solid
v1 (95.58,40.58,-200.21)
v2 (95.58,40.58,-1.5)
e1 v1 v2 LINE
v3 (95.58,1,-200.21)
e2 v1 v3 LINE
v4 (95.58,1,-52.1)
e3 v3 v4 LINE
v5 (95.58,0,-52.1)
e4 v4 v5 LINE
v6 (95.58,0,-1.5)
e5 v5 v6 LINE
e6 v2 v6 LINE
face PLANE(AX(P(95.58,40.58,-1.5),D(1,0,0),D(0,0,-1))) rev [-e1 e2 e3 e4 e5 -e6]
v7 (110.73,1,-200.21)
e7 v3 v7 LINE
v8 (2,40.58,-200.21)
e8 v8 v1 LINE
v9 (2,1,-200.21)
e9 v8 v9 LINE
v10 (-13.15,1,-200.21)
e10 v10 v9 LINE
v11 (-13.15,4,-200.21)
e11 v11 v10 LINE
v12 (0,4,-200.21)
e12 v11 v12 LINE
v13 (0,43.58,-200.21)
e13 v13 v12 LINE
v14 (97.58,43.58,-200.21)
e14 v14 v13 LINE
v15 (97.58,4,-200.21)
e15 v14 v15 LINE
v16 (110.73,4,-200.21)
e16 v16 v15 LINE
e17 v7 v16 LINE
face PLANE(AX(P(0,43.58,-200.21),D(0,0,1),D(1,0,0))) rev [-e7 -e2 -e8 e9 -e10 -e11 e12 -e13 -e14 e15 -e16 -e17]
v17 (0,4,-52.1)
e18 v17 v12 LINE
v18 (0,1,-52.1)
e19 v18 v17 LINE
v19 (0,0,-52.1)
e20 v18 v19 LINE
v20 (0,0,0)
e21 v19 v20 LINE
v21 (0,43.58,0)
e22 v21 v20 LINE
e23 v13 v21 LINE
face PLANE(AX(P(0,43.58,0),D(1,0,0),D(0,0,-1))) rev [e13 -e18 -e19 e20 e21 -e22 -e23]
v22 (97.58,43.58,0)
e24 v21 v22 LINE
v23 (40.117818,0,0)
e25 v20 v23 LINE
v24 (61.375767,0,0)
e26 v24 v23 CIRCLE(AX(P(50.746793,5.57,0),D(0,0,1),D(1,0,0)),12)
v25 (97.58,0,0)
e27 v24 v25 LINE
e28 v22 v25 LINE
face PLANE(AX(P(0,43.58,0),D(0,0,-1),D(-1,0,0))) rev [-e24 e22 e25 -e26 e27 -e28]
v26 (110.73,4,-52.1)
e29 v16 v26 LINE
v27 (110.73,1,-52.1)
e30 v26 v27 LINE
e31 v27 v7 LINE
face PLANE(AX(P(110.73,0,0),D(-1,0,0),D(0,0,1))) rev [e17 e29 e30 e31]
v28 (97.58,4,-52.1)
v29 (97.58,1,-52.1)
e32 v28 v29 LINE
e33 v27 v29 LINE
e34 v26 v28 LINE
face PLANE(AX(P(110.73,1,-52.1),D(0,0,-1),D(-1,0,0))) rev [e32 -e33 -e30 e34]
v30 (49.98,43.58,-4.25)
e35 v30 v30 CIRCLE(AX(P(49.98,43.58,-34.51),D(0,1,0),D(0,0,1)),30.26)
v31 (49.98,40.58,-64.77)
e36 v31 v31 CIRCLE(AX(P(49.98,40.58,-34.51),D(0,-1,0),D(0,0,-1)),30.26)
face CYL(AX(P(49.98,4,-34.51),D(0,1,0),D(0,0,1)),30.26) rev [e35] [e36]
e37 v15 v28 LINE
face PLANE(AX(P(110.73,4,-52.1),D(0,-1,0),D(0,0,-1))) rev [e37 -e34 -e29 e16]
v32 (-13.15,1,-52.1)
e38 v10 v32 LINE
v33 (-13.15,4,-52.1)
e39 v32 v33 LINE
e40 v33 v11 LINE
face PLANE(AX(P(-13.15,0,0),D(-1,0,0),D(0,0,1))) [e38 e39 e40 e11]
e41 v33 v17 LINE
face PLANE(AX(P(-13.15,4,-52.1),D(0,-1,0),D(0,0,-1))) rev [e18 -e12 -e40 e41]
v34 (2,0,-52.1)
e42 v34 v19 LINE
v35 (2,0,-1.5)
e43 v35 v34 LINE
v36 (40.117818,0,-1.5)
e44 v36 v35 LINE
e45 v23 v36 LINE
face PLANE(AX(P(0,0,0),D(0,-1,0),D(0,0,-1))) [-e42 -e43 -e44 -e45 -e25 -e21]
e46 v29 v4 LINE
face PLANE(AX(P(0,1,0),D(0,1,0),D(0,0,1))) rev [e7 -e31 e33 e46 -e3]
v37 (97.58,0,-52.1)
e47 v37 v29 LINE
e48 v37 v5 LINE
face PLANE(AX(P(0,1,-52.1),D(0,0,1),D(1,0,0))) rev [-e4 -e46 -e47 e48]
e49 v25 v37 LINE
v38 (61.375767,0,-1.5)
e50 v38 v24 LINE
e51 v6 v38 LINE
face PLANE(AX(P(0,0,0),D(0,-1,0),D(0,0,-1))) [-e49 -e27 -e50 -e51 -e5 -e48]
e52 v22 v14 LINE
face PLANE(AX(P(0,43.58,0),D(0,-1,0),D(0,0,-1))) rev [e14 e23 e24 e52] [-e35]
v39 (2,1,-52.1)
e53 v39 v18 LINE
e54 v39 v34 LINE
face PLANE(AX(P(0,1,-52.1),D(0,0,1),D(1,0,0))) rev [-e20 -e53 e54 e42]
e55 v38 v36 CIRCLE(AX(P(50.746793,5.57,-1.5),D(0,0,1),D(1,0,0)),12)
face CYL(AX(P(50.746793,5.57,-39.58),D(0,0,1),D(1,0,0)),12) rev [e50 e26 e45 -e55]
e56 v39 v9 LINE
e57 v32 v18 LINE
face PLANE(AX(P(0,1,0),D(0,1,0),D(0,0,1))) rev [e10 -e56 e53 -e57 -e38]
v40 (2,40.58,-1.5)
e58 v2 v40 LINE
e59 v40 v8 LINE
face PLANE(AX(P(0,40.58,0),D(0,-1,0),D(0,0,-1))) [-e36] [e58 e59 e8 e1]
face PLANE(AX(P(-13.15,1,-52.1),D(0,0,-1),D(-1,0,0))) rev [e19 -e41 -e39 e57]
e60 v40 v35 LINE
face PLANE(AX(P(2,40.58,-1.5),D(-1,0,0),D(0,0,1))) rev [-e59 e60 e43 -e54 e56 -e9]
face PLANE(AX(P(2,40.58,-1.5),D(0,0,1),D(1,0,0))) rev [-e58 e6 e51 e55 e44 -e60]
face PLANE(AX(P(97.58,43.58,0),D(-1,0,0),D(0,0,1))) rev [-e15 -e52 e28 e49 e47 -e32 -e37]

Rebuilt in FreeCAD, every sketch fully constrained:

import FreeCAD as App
import Part
import Sketcher
from FreeCAD import Vector
Q = App.Units.Quantity


def add_polygon(sketch, points):
    """Adds a closed chain of lines whose ends are joined by coincident constraints."""
    first, n = sketch.GeometryCount, len(points)
    for a, b in zip(points, points[1:] + points[:1]):
        sketch.addGeometry(Part.LineSegment(App.Vector(*a, 0), App.Vector(*b, 0)), False)
    for i in range(n):
        sketch.addConstraint(Sketcher.Constraint("Coincident", first + i, 2, first + (i + 1) % n, 1))

doc = App.newDocument("Part")
params = doc.addObject("Spreadsheet::Sheet", "Params")
for row, (alias, value) in enumerate([
    ("sketch1_width", "97.58 mm"),
    ("sketch1_height", "200.21 mm"),
    ("pad1_length", "43.58 mm"),
    ("sketch2_width", "2 mm"),
    ("sketch2_height", "148.11 mm"),
    ("pocket1_length", "1 mm"),
    ("sketch3_width", "1 mm"),
    ("sketch3_height", "148.11 mm"),
    ("pocket2_length", "100 mm"),
    ("sketch4_height", "50.6 mm"),
    ("sketch4_width", "93.58 mm"),
    ("pocket3_length", "40.58 mm"),
    ("sketch5_width", "93.58 mm"),
    ("sketch5_height", "148.11 mm"),
    ("pocket4_length", "39.58 mm"),
    ("sketch6_diameter", "24 mm"),
    ("pocket5_length", "39.58 mm"),
    ("sketch7_diameter", "60.52 mm"),
    ("pocket6_length", "39.58 mm"),
    ("sketch8_width", "3 mm"),
    ("sketch8_height", "148.11 mm"),
    ("pad2_length", "13.15 mm"),
    ("sketch9_width", "3 mm"),
    ("sketch9_height", "148.11 mm"),
    ("pad3_length", "13.15 mm"),
], start=1):
    params.set(f"A{row}", alias)
    params.set(f"B{row}", "=" + value)
    params.setAlias(f"B{row}", alias)

body = doc.addObject("PartDesign::Body", "Body")

# Sketch on XZ plane
sketch1 = body.newObject("Sketcher::SketchObject", "Sketch")
sketch1.AttachmentSupport = (doc.getObject("XZ_Plane"), [""])
sketch1.MapMode = "FlatFace"
add_polygon(sketch1, [(0, -200), (0, 0), (98, 0), (98, -200)])  # lines 0-3
sketch1.addConstraint([
    Sketcher.Constraint("Vertical", 0),
    Sketcher.Constraint("Horizontal", 1),
    Sketcher.Constraint("Vertical", 2),
    Sketcher.Constraint("Horizontal", 3),
    Sketcher.Constraint("Coincident", 0, 2, -1, 1),
    Sketcher.Constraint("DistanceX", 1, 1, 1, 2, Q("97.58 mm")),
    Sketcher.Constraint("DistanceY", 0, 1, 0, 2, Q("200.21 mm")),
])
sketch1.setExpression("Constraints[9]", "Params.sketch1_width")
sketch1.setExpression("Constraints[10]", "Params.sketch1_height")
pad1 = body.newObject("PartDesign::Pad", "Pad")
pad1.Profile = sketch1
pad1.setExpression("Length", "Params.pad1_length")
pad1.Reversed = True

# Sketch on XZ plane
sketch2 = body.newObject("Sketcher::SketchObject", "Sketch001")
sketch2.AttachmentSupport = (doc.getObject("XZ_Plane"), [""])
sketch2.MapMode = "FlatFace"
add_polygon(sketch2, [(0, -52.1), (0, -200.2), (2, -200.2), (2, -52.1)])  # lines 0-3
sketch2.addConstraint([
    Sketcher.Constraint("Vertical", 0),
    Sketcher.Constraint("Horizontal", 1),
    Sketcher.Constraint("Vertical", 2),
    Sketcher.Constraint("Horizontal", 3),
    Sketcher.Constraint("PointOnObject", 0, 2, -2),
    Sketcher.Constraint("DistanceX", 1, 1, 1, 2, Q("2 mm")),
    Sketcher.Constraint("DistanceY", 0, 2, 0, 1, Q("148.11 mm")),
    Sketcher.Constraint("DistanceY", 2, 2, -1, 1, Q("52.1 mm")),
])
sketch2.setExpression("Constraints[9]", "Params.sketch2_width")
sketch2.setExpression("Constraints[10]", "Params.sketch2_height")
pocket1 = body.newObject("PartDesign::Pocket", "Pocket")
pocket1.Profile = sketch2
pocket1.setExpression("Length", "Params.pocket1_length")

# Sketch on YZ plane
sketch3 = body.newObject("Sketcher::SketchObject", "Sketch002")
sketch3.AttachmentSupport = (doc.getObject("YZ_Plane"), [""])
sketch3.MapMode = "FlatFace"
sketch3.AttachmentOffset = App.Placement(Vector(0, 0, 2), App.Rotation())
add_polygon(sketch3, [(1, -200.2), (0, -200.2), (0, -52.1), (1, -52.1)])  # lines 0-3
sketch3.addConstraint([
    Sketcher.Constraint("Horizontal", 0),
    Sketcher.Constraint("Vertical", 1),
    Sketcher.Constraint("Horizontal", 2),
    Sketcher.Constraint("Vertical", 3),
    Sketcher.Constraint("PointOnObject", 0, 2, -2),
    Sketcher.Constraint("DistanceX", 0, 2, 0, 1, Q("1 mm")),
    Sketcher.Constraint("DistanceY", 1, 1, 1, 2, Q("148.11 mm")),
    Sketcher.Constraint("DistanceY", 1, 2, -1, 1, Q("52.1 mm")),
])
sketch3.setExpression("Constraints[9]", "Params.sketch3_width")
sketch3.setExpression("Constraints[10]", "Params.sketch3_height")
pocket2 = body.newObject("PartDesign::Pocket", "Pocket001")
pocket2.Profile = sketch3
pocket2.setExpression("Length", "Params.pocket2_length")
pocket2.Reversed = True

# Sketch on XZ plane
sketch4 = body.newObject("Sketcher::SketchObject", "Sketch003")
sketch4.AttachmentSupport = (doc.getObject("XZ_Plane"), [""])
sketch4.MapMode = "FlatFace"
add_polygon(sketch4, [(96, -52), (96, -2), (2, -2), (2, -52)])  # lines 0-3
sketch4.addConstraint([
    Sketcher.Constraint("Vertical", 0),
    Sketcher.Constraint("Horizontal", 1),
    Sketcher.Constraint("Vertical", 2),
    Sketcher.Constraint("Horizontal", 3),
    Sketcher.Constraint("DistanceY", 0, 1, 0, 2, Q("50.6 mm")),
    Sketcher.Constraint("DistanceX", -1, 1, 1, 2, Q("2 mm")),
    Sketcher.Constraint("DistanceX", 1, 2, 1, 1, Q("93.58 mm")),
    Sketcher.Constraint("DistanceY", 0, 2, -1, 1, Q("1.5 mm")),
])
sketch4.setExpression("Constraints[8]", "Params.sketch4_height")
sketch4.setExpression("Constraints[10]", "Params.sketch4_width")
pocket3 = body.newObject("PartDesign::Pocket", "Pocket002")
pocket3.Profile = sketch4
pocket3.setExpression("Length", "Params.pocket3_length")

# Sketch on XZ plane
sketch5 = body.newObject("Sketcher::SketchObject", "Sketch004")
sketch5.AttachmentSupport = (doc.getObject("XZ_Plane"), [""])
sketch5.MapMode = "FlatFace"
sketch5.AttachmentOffset = App.Placement(Vector(0, 0, -1), App.Rotation())
add_polygon(sketch5, [(96, -200), (96, -52), (2, -52), (2, -200)])  # lines 0-3
sketch5.addConstraint([
    Sketcher.Constraint("Vertical", 0),
    Sketcher.Constraint("Horizontal", 1),
    Sketcher.Constraint("Vertical", 2),
    Sketcher.Constraint("Horizontal", 3),
    Sketcher.Constraint("DistanceX", -1, 1, 1, 2, Q("2 mm")),
    Sketcher.Constraint("DistanceX", 1, 2, 1, 1, Q("93.58 mm")),
    Sketcher.Constraint("DistanceY", 0, 1, 0, 2, Q("148.11 mm")),
    Sketcher.Constraint("DistanceY", 0, 2, -1, 1, Q("52.1 mm")),
])
sketch5.setExpression("Constraints[9]", "Params.sketch5_width")
sketch5.setExpression("Constraints[10]", "Params.sketch5_height")
pocket4 = body.newObject("PartDesign::Pocket", "Pocket003")
pocket4.Profile = sketch5
pocket4.setExpression("Length", "Params.pocket4_length")

# Sketch on XY plane
sketch6 = body.newObject("Sketcher::SketchObject", "Sketch005")
sketch6.AttachmentSupport = (doc.getObject("XY_Plane"), [""])
sketch6.MapMode = "FlatFace"
sketch6.addGeometry(Part.Circle(Vector(51, 6, 0), Vector(0, 0, 1), 12), False)
sketch6.addConstraint([
    Sketcher.Constraint("Diameter", 0, Q("24 mm")),
    Sketcher.Constraint("DistanceY", -1, 1, 0, 3, Q("5.57 mm")),
    Sketcher.Constraint("DistanceX", -1, 1, 0, 3, Q("50.746793 mm")),
])
sketch6.setExpression("Constraints[0]", "Params.sketch6_diameter")
pocket5 = body.newObject("PartDesign::Pocket", "Pocket004")
pocket5.Profile = sketch6
pocket5.setExpression("Length", "Params.pocket5_length")

# Sketch on XZ plane
sketch7 = body.newObject("Sketcher::SketchObject", "Sketch006")
sketch7.AttachmentSupport = (doc.getObject("XZ_Plane"), [""])
sketch7.MapMode = "FlatFace"
sketch7.AttachmentOffset = App.Placement(Vector(0, 0, -43.58), App.Rotation())
sketch7.addGeometry(Part.Circle(Vector(50, -35, 0), Vector(0, 0, 1), 30), False)
sketch7.addConstraint([
    Sketcher.Constraint("Diameter", 0, Q("60.52 mm")),
    Sketcher.Constraint("DistanceX", -1, 1, 0, 3, Q("49.98 mm")),
    Sketcher.Constraint("DistanceY", 0, 3, -1, 1, Q("34.51 mm")),
])
sketch7.setExpression("Constraints[0]", "Params.sketch7_diameter")
pocket6 = body.newObject("PartDesign::Pocket", "Pocket005")
pocket6.Profile = sketch7
pocket6.setExpression("Length", "Params.pocket6_length")
pocket6.Reversed = True

# Sketch on YZ plane
sketch8 = body.newObject("Sketcher::SketchObject", "Sketch007")
sketch8.AttachmentSupport = (doc.getObject("YZ_Plane"), [""])
sketch8.MapMode = "FlatFace"
add_polygon(sketch8, [(4, -200.2), (1, -200.2), (1, -52.1), (4, -52.1)])  # lines 0-3
sketch8.addConstraint([
    Sketcher.Constraint("Horizontal", 0),
    Sketcher.Constraint("Vertical", 1),
    Sketcher.Constraint("Horizontal", 2),
    Sketcher.Constraint("Vertical", 3),
    Sketcher.Constraint("DistanceX", 0, 2, 0, 1, Q("3 mm")),
    Sketcher.Constraint("DistanceX", -1, 1, 0, 2, Q("1 mm")),
    Sketcher.Constraint("DistanceY", 1, 1, 1, 2, Q("148.11 mm")),
    Sketcher.Constraint("DistanceY", 1, 2, -1, 1, Q("52.1 mm")),
])
sketch8.setExpression("Constraints[8]", "Params.sketch8_width")
sketch8.setExpression("Constraints[10]", "Params.sketch8_height")
pad2 = body.newObject("PartDesign::Pad", "Pad001")
pad2.Profile = sketch8
pad2.setExpression("Length", "Params.pad2_length")
pad2.Reversed = True

# Sketch on YZ plane
sketch9 = body.newObject("Sketcher::SketchObject", "Sketch008")
sketch9.AttachmentSupport = (doc.getObject("YZ_Plane"), [""])
sketch9.MapMode = "FlatFace"
sketch9.AttachmentOffset = App.Placement(Vector(0, 0, 97.58), App.Rotation())
add_polygon(sketch9, [(4, -52.1), (1, -52.1), (1, -200.2), (4, -200.2)])  # lines 0-3
sketch9.addConstraint([
    Sketcher.Constraint("Horizontal", 0),
    Sketcher.Constraint("Vertical", 1),
    Sketcher.Constraint("Horizontal", 2),
    Sketcher.Constraint("Vertical", 3),
    Sketcher.Constraint("DistanceX", 0, 2, 0, 1, Q("3 mm")),
    Sketcher.Constraint("DistanceX", -1, 1, 0, 2, Q("1 mm")),
    Sketcher.Constraint("DistanceY", 1, 2, 1, 1, Q("148.11 mm")),
    Sketcher.Constraint("DistanceY", 0, 2, -1, 1, Q("52.1 mm")),
])
sketch9.setExpression("Constraints[8]", "Params.sketch9_width")
sketch9.setExpression("Constraints[10]", "Params.sketch9_height")
pad3 = body.newObject("PartDesign::Pad", "Pad002")
pad3.Profile = sketch9
pad3.setExpression("Length", "Params.pad3_length")

doc.recompute()
